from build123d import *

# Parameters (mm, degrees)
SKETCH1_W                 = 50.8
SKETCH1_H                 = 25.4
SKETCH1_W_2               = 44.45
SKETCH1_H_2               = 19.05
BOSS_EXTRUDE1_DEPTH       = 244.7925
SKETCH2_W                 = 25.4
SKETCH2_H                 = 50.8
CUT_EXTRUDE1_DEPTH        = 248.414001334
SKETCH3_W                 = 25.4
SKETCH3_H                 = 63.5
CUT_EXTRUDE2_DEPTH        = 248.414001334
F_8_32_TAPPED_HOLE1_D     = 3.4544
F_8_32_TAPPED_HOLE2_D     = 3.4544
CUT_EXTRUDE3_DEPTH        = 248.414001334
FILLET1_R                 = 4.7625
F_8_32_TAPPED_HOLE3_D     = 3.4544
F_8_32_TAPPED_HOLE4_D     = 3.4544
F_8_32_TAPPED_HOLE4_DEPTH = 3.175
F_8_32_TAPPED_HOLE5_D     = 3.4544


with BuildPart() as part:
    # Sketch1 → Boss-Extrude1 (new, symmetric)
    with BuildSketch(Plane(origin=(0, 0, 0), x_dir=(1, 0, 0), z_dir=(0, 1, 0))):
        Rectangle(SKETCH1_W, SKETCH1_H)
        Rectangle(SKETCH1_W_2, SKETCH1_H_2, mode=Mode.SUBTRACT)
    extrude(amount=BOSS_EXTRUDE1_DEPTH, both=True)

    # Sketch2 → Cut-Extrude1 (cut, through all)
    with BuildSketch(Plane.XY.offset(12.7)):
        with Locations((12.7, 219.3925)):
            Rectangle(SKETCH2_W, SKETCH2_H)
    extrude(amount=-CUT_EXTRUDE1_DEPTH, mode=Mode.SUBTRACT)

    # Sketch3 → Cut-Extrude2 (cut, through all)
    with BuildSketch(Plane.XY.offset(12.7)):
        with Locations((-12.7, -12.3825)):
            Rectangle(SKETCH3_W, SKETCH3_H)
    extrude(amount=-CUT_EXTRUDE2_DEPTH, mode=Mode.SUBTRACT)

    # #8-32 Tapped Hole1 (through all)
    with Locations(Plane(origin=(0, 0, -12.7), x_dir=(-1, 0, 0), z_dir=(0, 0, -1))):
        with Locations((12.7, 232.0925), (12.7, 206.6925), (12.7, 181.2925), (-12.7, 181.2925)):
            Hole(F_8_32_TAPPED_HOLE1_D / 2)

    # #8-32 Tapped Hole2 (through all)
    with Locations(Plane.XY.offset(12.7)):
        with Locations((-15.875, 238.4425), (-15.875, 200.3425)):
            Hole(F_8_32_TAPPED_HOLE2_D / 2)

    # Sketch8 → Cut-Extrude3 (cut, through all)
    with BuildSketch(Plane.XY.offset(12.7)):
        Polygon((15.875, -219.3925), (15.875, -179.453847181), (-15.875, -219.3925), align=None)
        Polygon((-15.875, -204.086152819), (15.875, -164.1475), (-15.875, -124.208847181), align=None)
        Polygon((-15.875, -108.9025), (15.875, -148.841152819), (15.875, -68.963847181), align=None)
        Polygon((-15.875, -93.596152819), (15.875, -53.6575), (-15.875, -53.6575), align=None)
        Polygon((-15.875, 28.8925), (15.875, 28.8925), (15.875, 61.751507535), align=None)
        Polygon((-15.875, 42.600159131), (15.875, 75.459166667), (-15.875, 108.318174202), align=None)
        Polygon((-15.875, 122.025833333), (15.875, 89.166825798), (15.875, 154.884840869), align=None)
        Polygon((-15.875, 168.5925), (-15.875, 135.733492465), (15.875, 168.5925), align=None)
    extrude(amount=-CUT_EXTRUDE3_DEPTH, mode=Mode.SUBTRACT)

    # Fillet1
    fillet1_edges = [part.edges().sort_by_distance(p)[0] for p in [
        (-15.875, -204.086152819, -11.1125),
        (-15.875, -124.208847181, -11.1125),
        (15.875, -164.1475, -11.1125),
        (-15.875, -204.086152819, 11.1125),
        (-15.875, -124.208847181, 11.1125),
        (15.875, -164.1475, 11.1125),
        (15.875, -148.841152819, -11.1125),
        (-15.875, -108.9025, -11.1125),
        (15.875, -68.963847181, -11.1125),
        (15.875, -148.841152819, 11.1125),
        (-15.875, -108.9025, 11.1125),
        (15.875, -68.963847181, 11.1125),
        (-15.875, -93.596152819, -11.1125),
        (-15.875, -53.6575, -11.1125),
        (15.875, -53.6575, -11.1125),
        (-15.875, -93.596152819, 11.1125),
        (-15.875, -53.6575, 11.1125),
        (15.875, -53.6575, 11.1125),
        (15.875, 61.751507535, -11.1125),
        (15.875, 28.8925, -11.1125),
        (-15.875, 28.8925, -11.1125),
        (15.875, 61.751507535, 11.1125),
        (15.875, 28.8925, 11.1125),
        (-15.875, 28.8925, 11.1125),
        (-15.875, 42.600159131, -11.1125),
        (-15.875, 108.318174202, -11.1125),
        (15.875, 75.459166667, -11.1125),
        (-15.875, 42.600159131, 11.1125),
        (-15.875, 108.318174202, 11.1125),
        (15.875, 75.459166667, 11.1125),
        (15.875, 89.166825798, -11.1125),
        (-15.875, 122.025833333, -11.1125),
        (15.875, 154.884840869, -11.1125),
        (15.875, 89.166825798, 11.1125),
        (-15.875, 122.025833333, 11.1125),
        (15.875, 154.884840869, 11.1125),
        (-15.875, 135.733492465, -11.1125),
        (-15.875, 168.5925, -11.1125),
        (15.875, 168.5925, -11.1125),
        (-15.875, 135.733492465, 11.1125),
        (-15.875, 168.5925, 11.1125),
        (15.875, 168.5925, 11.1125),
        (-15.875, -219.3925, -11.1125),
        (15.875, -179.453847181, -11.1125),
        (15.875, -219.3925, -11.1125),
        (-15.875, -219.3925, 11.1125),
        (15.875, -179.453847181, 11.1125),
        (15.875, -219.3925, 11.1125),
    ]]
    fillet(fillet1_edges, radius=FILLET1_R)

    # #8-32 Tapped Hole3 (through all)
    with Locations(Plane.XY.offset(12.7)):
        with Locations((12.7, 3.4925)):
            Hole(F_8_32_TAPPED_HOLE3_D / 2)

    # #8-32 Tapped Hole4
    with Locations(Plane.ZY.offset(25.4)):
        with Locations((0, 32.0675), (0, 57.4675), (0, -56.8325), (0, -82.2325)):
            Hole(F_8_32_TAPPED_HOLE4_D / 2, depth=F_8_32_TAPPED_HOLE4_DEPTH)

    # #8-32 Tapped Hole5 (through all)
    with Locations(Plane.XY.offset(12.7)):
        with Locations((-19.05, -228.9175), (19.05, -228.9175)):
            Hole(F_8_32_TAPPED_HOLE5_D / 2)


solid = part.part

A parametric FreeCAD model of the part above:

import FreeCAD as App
import Part
import Sketcher

V = App.Vector
Q = App.Units.Quantity


def edges_at(feature, points):
    """Names of the edges that pass closest to the given points."""
    edges = feature.Shape.Edges
    near = lambda p: min(range(len(edges)), key=lambda i: edges[i].distToShape(Part.Vertex(*p))[0])
    return sorted({f"Edge{near(p) + 1}" for p in points})

doc = App.newDocument("Part")
body = doc.addObject("PartDesign::Body", "Body")

sketch1 = body.newObject("Sketcher::SketchObject", "Sketch")
sketch1.AttachmentSupport = (doc.getObject("XZ_Plane"), [""])
sketch1.MapMode = "FlatFace"
sketch1.addGeometry([
    Part.LineSegment(V(-25.4, -12.7, 0), V(-25.4, 12.7, 0)),
    Part.LineSegment(V(-25.4, 12.7, 0), V(25.4, 12.7, 0)),
    Part.LineSegment(V(25.4, 12.7, 0), V(25.4, -12.7, 0)),
    Part.LineSegment(V(25.4, -12.7, 0), V(-25.4, -12.7, 0)),
    Part.LineSegment(V(22.225, 9.525, 0), V(-22.225, 9.525, 0)),
    Part.LineSegment(V(-22.225, 9.525, 0), V(-22.225, -9.525, 0)),
    Part.LineSegment(V(-22.225, -9.525, 0), V(22.225, -9.525, 0)),
    Part.LineSegment(V(22.225, -9.525, 0), V(22.225, 9.525, 0)),
], False)
sketch1.addConstraint([
    Sketcher.Constraint("Coincident", 0, 2, 1, 1),
    Sketcher.Constraint("Coincident", 1, 2, 2, 1),
    Sketcher.Constraint("Coincident", 2, 2, 3, 1),
    Sketcher.Constraint("Coincident", 3, 2, 0, 1),
    Sketcher.Constraint("Coincident", 4, 2, 5, 1),
    Sketcher.Constraint("Coincident", 5, 2, 6, 1),
    Sketcher.Constraint("Coincident", 6, 2, 7, 1),
    Sketcher.Constraint("Coincident", 7, 2, 4, 1),
    Sketcher.Constraint("Vertical", 0),
    Sketcher.Constraint("Horizontal", 1),
    Sketcher.Constraint("Vertical", 2),
    Sketcher.Constraint("Horizontal", 3),
    Sketcher.Constraint("Horizontal", 4),
    Sketcher.Constraint("Vertical", 5),
    Sketcher.Constraint("Horizontal", 6),
    Sketcher.Constraint("Vertical", 7),
    Sketcher.Constraint("Symmetric", 0, 2, 2, 2, -1, 1),
    Sketcher.Constraint("Symmetric", 4, 2, 6, 2, -1, 1),
    Sketcher.Constraint("DistanceX", 1, 1, 1, 2, Q("2 in")),
    Sketcher.Constraint("DistanceY", 0, 1, 0, 2, Q("1 in")),
    Sketcher.Constraint("DistanceX", 4, 2, 4, 1, Q("1.75 in")),
    Sketcher.Constraint("DistanceY", 5, 2, 5, 1, Q("0.75 in")),
])
pad1 = body.newObject("PartDesign::Pad", "Pad")
pad1.Profile = sketch1
pad1.Length = Q("19.275 in")
pad1.Midplane = True

sketch2 = body.newObject("Sketcher::SketchObject", "Sketch001")
sketch2.AttachmentSupport = (doc.getObject("XY_Plane"), [""])
sketch2.MapMode = "FlatFace"
sketch2.AttachmentOffset = App.Placement(V(0, 0, 0.5 * 25.4), App.Rotation())
sketch2.addGeometry([
    Part.LineSegment(V(0, 244.7925, 0), V(0, 193.9925, 0)),
    Part.LineSegment(V(0, 193.9925, 0), V(25.4, 193.9925, 0)),
    Part.LineSegment(V(25.4, 193.9925, 0), V(25.4, 244.7925, 0)),
    Part.LineSegment(V(25.4, 244.7925, 0), V(0, 244.7925, 0)),
], False)
sketch2.addConstraint([
    Sketcher.Constraint("Coincident", 0, 2, 1, 1),
    Sketcher.Constraint("Coincident", 1, 2, 2, 1),
    Sketcher.Constraint("Coincident", 2, 2, 3, 1),
    Sketcher.Constraint("Coincident", 3, 2, 0, 1),
    Sketcher.Constraint("Vertical", 0),
    Sketcher.Constraint("Horizontal", 1),
    Sketcher.Constraint("Vertical", 2),
    Sketcher.Constraint("Horizontal", 3),
    Sketcher.Constraint("PointOnObject", 0, 2, -2),
    Sketcher.Constraint("DistanceX", 1, 1, 1, 2, Q("1 in")),
    Sketcher.Constraint("DistanceY", 0, 2, 0, 1, Q("2 in")),
    Sketcher.Constraint("DistanceY", -1, 1, 0, 2, Q("7.6375 in")),
])
pocket1 = body.newObject("PartDesign::Pocket", "Pocket")
pocket1.Profile = sketch2
pocket1.Type = "ThroughAll"

sketch3 = body.newObject("Sketcher::SketchObject", "Sketch002")
sketch3.AttachmentSupport = (doc.getObject("XY_Plane"), [""])
sketch3.MapMode = "FlatFace"
sketch3.AttachmentOffset = App.Placement(V(0, 0, 0.5 * 25.4), App.Rotation())
sketch3.addGeometry([
    Part.LineSegment(V(-25.4, 19.3675, 0), V(-25.4, -44.1325, 0)),
    Part.LineSegment(V(-25.4, -44.1325, 0), V(0, -44.1325, 0)),
    Part.LineSegment(V(0, -44.1325, 0), V(0, 19.3675, 0)),
    Part.LineSegment(V(0, 19.3675, 0), V(-25.4, 19.3675, 0)),
], False)
sketch3.addConstraint([
    Sketcher.Constraint("Coincident", 0, 2, 1, 1),
    Sketcher.Constraint("Coincident", 1, 2, 2, 1),
    Sketcher.Constraint("Coincident", 2, 2, 3, 1),
    Sketcher.Constraint("Coincident", 3, 2, 0, 1),
    Sketcher.Constraint("Vertical", 0),
    Sketcher.Constraint("Horizontal", 1),
    Sketcher.Constraint("Vertical", 2),
    Sketcher.Constraint("Horizontal", 3),
    Sketcher.Constraint("PointOnObject", 1, 2, -2),
    Sketcher.Constraint("DistanceX", 1, 1, 1, 2, Q("1 in")),
    Sketcher.Constraint("DistanceY", 0, 2, 0, 1, Q("2.5 in")),
    Sketcher.Constraint("DistanceY", 0, 2, -1, 1, Q("1.7375 in")),
])
pocket2 = body.newObject("PartDesign::Pocket", "Pocket001")
pocket2.Profile = sketch3
pocket2.Type = "ThroughAll"

sketch4 = body.newObject("Sketcher::SketchObject", "Sketch003")
sketch4.AttachmentSupport = (doc.getObject("XY_Plane"), [""])
sketch4.MapMode = "FlatFace"
sketch4.AttachmentOffset = App.Placement(V(0, 0, -0.5 * 25.4), App.Rotation())
sketch4.addGeometry([
    Part.Circle(V(-12.7, 232.0925, 0), V(0, 0, 1), 1.7272),
    Part.Circle(V(-12.7, 206.6925, 0), V(0, 0, 1), 1.7272),
    Part.Circle(V(-12.7, 181.2925, 0), V(0, 0, 1), 1.7272),
    Part.Circle(V(12.7, 181.2925, 0), V(0, 0, 1), 1.7272),
], False)
sketch4.addConstraint([
    Sketcher.Constraint("Equal", 0, 1),
    Sketcher.Constraint("Equal", 1, 2),
    Sketcher.Constraint("Equal", 2, 3),
    Sketcher.Constraint("Symmetric", 2, 3, 3, 3, -2),
    Sketcher.Constraint("Vertical", 0, 3, 1, 3),
    Sketcher.Constraint("Vertical", 1, 3, 2, 3),
    Sketcher.Constraint("Diameter", 0, Q("0.136 in")),
    Sketcher.Constraint("DistanceY", 1, 3, 0, 3, Q("1 in")),
    Sketcher.Constraint("DistanceY", 2, 3, 1, 3, Q("1 in")),
    Sketcher.Constraint("DistanceX", 2, 3, 3, 3, Q("1 in")),
    Sketcher.Constraint("DistanceY", -1, 1, 0, 3, Q("9.1375 in")),
])
doc.recompute()
hole = body.newObject("PartDesign::Hole", "Hole")
hole.Profile = sketch4
hole.ThreadType = "None"
hole.Diameter = Q("0.136 in")
hole.DepthType = "ThroughAll"
hole.Reversed = True

sketch5 = body.newObject("Sketcher::SketchObject", "Sketch004")
sketch5.AttachmentSupport = (doc.getObject("XY_Plane"), [""])
sketch5.MapMode = "FlatFace"
sketch5.AttachmentOffset = App.Placement(V(0, 0, 0.5 * 25.4), App.Rotation())
sketch5.addGeometry([
    Part.Circle(V(-15.875, 238.4425, 0), V(0, 0, 1), 1.7272),
    Part.Circle(V(-15.875, 200.3425, 0), V(0, 0, 1), 1.7272),
], False)
sketch5.addConstraint([
    Sketcher.Constraint("Equal", 0, 1),
    Sketcher.Constraint("Vertical", 0, 3, 1, 3),
    Sketcher.Constraint("Diameter", 0, Q("0.136 in")),
    Sketcher.Constraint("DistanceY", 1, 3, 0, 3, Q("1.5 in")),
    Sketcher.Constraint("DistanceX", 0, 3, -1, 1, Q("0.625 in")),
    Sketcher.Constraint("DistanceY", -1, 1, 0, 3, Q("9.3875 in")),
])
doc.recompute()
hole2 = body.newObject("PartDesign::Hole", "Hole001")
hole2.Profile = sketch5
hole2.ThreadType = "None"
hole2.Diameter = Q("0.136 in")
hole2.DepthType = "ThroughAll"

sketch6 = body.newObject("Sketcher::SketchObject", "Sketch005")
sketch6.AttachmentSupport = (doc.getObject("XY_Plane"), [""])
sketch6.MapMode = "FlatFace"
sketch6.AttachmentOffset = App.Placement(V(0, 0, 0.5 * 25.4), App.Rotation())
sketch6.addGeometry([
    Part.LineSegment(V(15.875, -219.3925, 0), V(15.875, -179.453847, 0)),
    Part.LineSegment(V(15.875, -179.453847, 0), V(-15.875, -219.3925, 0)),
    Part.LineSegment(V(-15.875, -219.3925, 0), V(15.875, -219.3925, 0)),
    Part.LineSegment(V(-15.875, -204.086153, 0), V(15.875, -164.1475, 0)),
    Part.LineSegment(V(15.875, -164.1475, 0), V(-15.875, -124.208847, 0)),
    Part.LineSegment(V(-15.875, -124.208847, 0), V(-15.875, -204.086153, 0)),
    Part.LineSegment(V(-15.875, -108.9025, 0), V(15.875, -148.841153, 0)),
    Part.LineSegment(V(15.875, -148.841153, 0), V(15.875, -68.963847, 0)),
    Part.LineSegment(V(15.875, -68.963847, 0), V(-15.875, -108.9025, 0)),
    Part.LineSegment(V(-15.875, -93.596153, 0), V(15.875, -53.6575, 0)),
    Part.LineSegment(V(15.875, -53.6575, 0), V(-15.875, -53.6575, 0)),
    Part.LineSegment(V(-15.875, -53.6575, 0), V(-15.875, -93.596153, 0)),
    Part.LineSegment(V(-15.875, 28.8925, 0), V(15.875, 28.8925, 0)),
    Part.LineSegment(V(15.875, 28.8925, 0), V(15.875, 61.751508, 0)),
    Part.LineSegment(V(15.875, 61.751508, 0), V(-15.875, 28.8925, 0)),
    Part.LineSegment(V(-15.875, 42.600159, 0), V(15.875, 75.459167, 0)),
    Part.LineSegment(V(15.875, 75.459167, 0), V(-15.875, 108.318174, 0)),
    Part.LineSegment(V(-15.875, 108.318174, 0), V(-15.875, 42.600159, 0)),
    Part.LineSegment(V(-15.875, 122.025833, 0), V(15.875, 89.166826, 0)),
    Part.LineSegment(V(15.875, 89.166826, 0), V(15.875, 154.884841, 0)),
    Part.LineSegment(V(15.875, 154.884841, 0), V(-15.875, 122.025833, 0)),
    Part.LineSegment(V(-15.875, 168.5925, 0), V(-15.875, 135.733492, 0)),
    Part.LineSegment(V(-15.875, 135.733492, 0), V(15.875, 168.5925, 0)),
    Part.LineSegment(V(15.875, 168.5925, 0), V(-15.875, 168.5925, 0)),
], False)
sketch6.addConstraint([
    Sketcher.Constraint("Coincident", 0, 2, 1, 1),
    Sketcher.Constraint("Coincident", 1, 2, 2, 1),
    Sketcher.Constraint("Coincident", 2, 2, 0, 1),
    Sketcher.Constraint("Coincident", 3, 2, 4, 1),
    Sketcher.Constraint("Coincident", 4, 2, 5, 1),
    Sketcher.Constraint("Coincident", 5, 2, 3, 1),
    Sketcher.Constraint("Coincident", 6, 2, 7, 1),
    Sketcher.Constraint("Coincident", 7, 2, 8, 1),
    Sketcher.Constraint("Coincident", 8, 2, 6, 1),
    Sketcher.Constraint("Coincident", 9, 2, 10, 1),
    Sketcher.Constraint("Coincident", 10, 2, 11, 1),
    Sketcher.Constraint("Coincident", 11, 2, 9, 1),
    Sketcher.Constraint("Coincident", 12, 2, 13, 1),
    Sketcher.Constraint("Coincident", 13, 2, 14, 1),
    Sketcher.Constraint("Coincident", 14, 2, 12, 1),
    Sketcher.Constraint("Coincident", 15, 2, 16, 1),
    Sketcher.Constraint("Coincident", 16, 2, 17, 1),
    Sketcher.Constraint("Coincident", 17, 2, 15, 1),
    Sketcher.Constraint("Coincident", 18, 2, 19, 1),
    Sketcher.Constraint("Coincident", 19, 2, 20, 1),
    Sketcher.Constraint("Coincident", 20, 2, 18, 1),
    Sketcher.Constraint("Coincident", 21, 2, 22, 1),
    Sketcher.Constraint("Coincident", 22, 2, 23, 1),
    Sketcher.Constraint("Coincident", 23, 2, 21, 1),
    Sketcher.Constraint("Vertical", 0),
    Sketcher.Constraint("Horizontal", 2),
    Sketcher.Constraint("Vertical", 5),
    Sketcher.Constraint("Vertical", 7),
    Sketcher.Constraint("Horizontal", 10),
    Sketcher.Constraint("Vertical", 11),
    Sketcher.Constraint("Horizontal", 12),
    Sketcher.Constraint("Vertical", 13),
    Sketcher.Constraint("Vertical", 17),
    Sketcher.Constraint("Vertical", 19),
    Sketcher.Constraint("Vertical", 21),
    Sketcher.Constraint("Horizontal", 23),
    Sketcher.Constraint("Parallel", 1, 3),
    Sketcher.Constraint("Parallel", 4, 6),
    Sketcher.Constraint("Parallel", 3, 8),
    Sketcher.Constraint("Parallel", 8, 9),
    Sketcher.Constraint("Parallel", 14, 15),
    Sketcher.Constraint("Parallel", 16, 18),
    Sketcher.Constraint("Parallel", 15, 20),
    Sketcher.Constraint("Parallel", 20, 22),
    Sketcher.Constraint("Vertical", 2, 2, 3, 2),
    Sketcher.Constraint("Vertical", 1, 2, 4, 2),
    Sketcher.Constraint("Vertical", 3, 2, 6, 2),
    Sketcher.Constraint("Vertical", 5, 2, 8, 2),
    Sketcher.Constraint("Vertical", 7, 2, 9, 2),
    Sketcher.Constraint("Vertical", 8, 2, 10, 2),
    Sketcher.Constraint("Vertical", 9, 2, 12, 2),
    Sketcher.Constraint("Vertical", 11, 2, 14, 2),
    Sketcher.Constraint("Vertical", 13, 2, 15, 2),
    Sketcher.Constraint("Vertical", 14, 2, 16, 2),
    Sketcher.Constraint("Vertical", 15, 2, 18, 2),
    Sketcher.Constraint("Vertical", 17, 2, 20, 2),
    Sketcher.Constraint("Vertical", 20, 2, 21, 2),
    Sketcher.Constraint("Vertical", 19, 2, 22, 2),
    Sketcher.Constraint("Equal", 3, 4),
    Sketcher.Constraint("Equal", 15, 16),
    Sketcher.Constraint("DistanceX", 2, 1, 2, 2, Q("1.25 in")),
    Sketcher.Constraint("DistanceY", 0, 2, 7, 2, Q("4.35 in")),
    Sketcher.Constraint("DistanceY", 3, 2, 9, 2, Q("4.35 in")),
    Sketcher.Constraint("DistanceY", 9, 2, 12, 2, Q("3.25 in")),
    Sketcher.Constraint("DistanceX", -1, 1, 0, 2, Q("0.625 in")),
    Sketcher.Constraint("DistanceY", 2, 2, 3, 2, Q("2.175 in")),
    Sketcher.Constraint("DistanceY", 1, 2, -1, 1, Q("8.6375 in")),
    Sketcher.Constraint("DistanceY", -1, 1, 22, 2, Q("6.6375 in")),
    Sketcher.Constraint("DistanceY", 0, 1, 0, 2, 39.938653),
    Sketcher.Constraint("DistanceY", 13, 1, 13, 2, 32.859008),
    Sketcher.Constraint("DistanceY", -1, 1, 17, 2, 42.600159),
    Sketcher.Constraint("DistanceY", -1, 1, 19, 2, 154.884841),
])
pocket3 = body.newObject("PartDesign::Pocket", "Pocket002")
pocket3.Profile = sketch6
pocket3.Type = "ThroughAll"
doc.recompute()

fillet = body.newObject("PartDesign::Fillet", "Fillet")
fillet.Base = (pocket3, edges_at(pocket3, [
    (-15.875, -204.086, -11.113),
    (-15.875, -124.209, -11.113),
    (15.875, -164.148, -11.113),
    (-15.875, -204.086, 11.113),
    (-15.875, -124.209, 11.113),
    (15.875, -164.148, 11.113),
    (15.875, -148.841, -11.113),
    (-15.875, -108.903, -11.113),
    (15.875, -68.964, -11.113),
    (15.875, -148.841, 11.113),
    (-15.875, -108.903, 11.113),
    (15.875, -68.964, 11.113),
    (-15.875, -93.596, -11.113),
    (-15.875, -53.657, -11.113),
    (15.875, -53.657, -11.113),
    (-15.875, -93.596, 11.113),
    (-15.875, -53.657, 11.113),
    (15.875, -53.657, 11.113),
    (15.875, 61.752, -11.113),
    (15.875, 28.892, -11.113),
    (-15.875, 28.892, -11.113),
    (15.875, 61.752, 11.113),
    (15.875, 28.892, 11.113),
    (-15.875, 28.892, 11.113),
    (-15.875, 42.6, -11.113),
    (-15.875, 108.318, -11.113),
    (15.875, 75.459, -11.113),
    (-15.875, 42.6, 11.113),
    (-15.875, 108.318, 11.113),
    (15.875, 75.459, 11.113),
    (15.875, 89.167, -11.113),
    (-15.875, 122.026, -11.113),
    (15.875, 154.885, -11.113),
    (15.875, 89.167, 11.113),
    (-15.875, 122.026, 11.113),
    (15.875, 154.885, 11.113),
    (-15.875, 135.733, -11.113),
    (-15.875, 168.593, -11.113),
    (15.875, 168.593, -11.113),
    (-15.875, 135.733, 11.113),
    (-15.875, 168.593, 11.113),
    (15.875, 168.593, 11.113),
    (-15.875, -219.393, -11.113),
    (15.875, -179.454, -11.113),
    (15.875, -219.393, -11.113),
    (-15.875, -219.393, 11.113),
    (15.875, -179.454, 11.113),
    (15.875, -219.393, 11.113),
]))
fillet.Radius = Q("0.1875 in")

sketch7 = body.newObject("Sketcher::SketchObject", "Sketch006")
sketch7.AttachmentSupport = (doc.getObject("XY_Plane"), [""])
sketch7.MapMode = "FlatFace"
sketch7.AttachmentOffset = App.Placement(V(0, 0, 0.5 * 25.4), App.Rotation())
sketch7.addGeometry(Part.Circle(V(12.7, 3.4925, 0), V(0, 0, 1), 1.7272), False)
sketch7.addConstraint([
    Sketcher.Constraint("Diameter", 0, Q("0.136 in")),
    Sketcher.Constraint("DistanceX", -1, 1, 0, 3, Q("0.5 in")),
    Sketcher.Constraint("DistanceY", -1, 1, 0, 3, Q("0.1375 in")),
])
doc.recompute()
hole3 = body.newObject("PartDesign::Hole", "Hole002")
hole3.Profile = sketch7
hole3.ThreadType = "None"
hole3.Diameter = Q("0.136 in")
hole3.DepthType = "ThroughAll"

sketch8 = body.newObject("Sketcher::SketchObject", "Sketch007")
sketch8.AttachmentSupport = (doc.getObject("YZ_Plane"), [""])
sketch8.MapMode = "FlatFace"
sketch8.AttachmentOffset = App.Placement(V(0, 0, -1 * 25.4), App.Rotation())
sketch8.addGeometry([
    Part.Circle(V(32.0675, 0, 0), V(0, 0, 1), 1.7272),
    Part.Circle(V(57.4675, 0, 0), V(0, 0, 1), 1.7272),
    Part.Circle(V(-56.8325, 0, 0), V(0, 0, 1), 1.7272),
    Part.Circle(V(-82.2325, 0, 0), V(0, 0, 1), 1.7272),
], False)
sketch8.addConstraint([
    Sketcher.Constraint("Equal", 0, 1),
    Sketcher.Constraint("Equal", 1, 2),
    Sketcher.Constraint("Equal", 2, 3),
    Sketcher.Constraint("PointOnObject", 0, 3, -1),
    Sketcher.Constraint("PointOnObject", 1, 3, -1),
    Sketcher.Constraint("PointOnObject", 2, 3, -1),
    Sketcher.Constraint("PointOnObject", 3, 3, -1),
    Sketcher.Constraint("Diameter", 0, Q("0.136 in")),
    Sketcher.Constraint("DistanceX", 0, 3, 1, 3, Q("1 in")),
    Sketcher.Constraint("DistanceX", 3, 3, 2, 3, Q("1 in")),
    Sketcher.Constraint("DistanceX", 2, 3, 0, 3, Q("3.5 in")),
    Sketcher.Constraint("DistanceX", -1, 1, 0, 3, Q("1.2625 in")),
])
doc.recompute()
hole4 = body.newObject("PartDesign::Hole", "Hole003")
hole4.Profile = sketch8
hole4.ThreadType = "None"
hole4.Diameter = Q("0.136 in")
hole4.DepthType = "Dimension"
hole4.Depth = Q("0.125 in")
hole4.DrillPoint = "Flat"
hole4.Reversed = True

sketch9 = body.newObject("Sketcher::SketchObject", "Sketch008")
sketch9.AttachmentSupport = (doc.getObject("XY_Plane"), [""])
sketch9.MapMode = "FlatFace"
sketch9.AttachmentOffset = App.Placement(V(0, 0, 0.5 * 25.4), App.Rotation())
sketch9.addGeometry([
    Part.Circle(V(-19.05, -228.9175, 0), V(0, 0, 1), 1.7272),
    Part.Circle(V(19.05, -228.9175, 0), V(0, 0, 1), 1.7272),
], False)
sketch9.addConstraint([
    Sketcher.Constraint("Equal", 0, 1),
    Sketcher.Constraint("Symmetric", 0, 3, 1, 3, -2),
    Sketcher.Constraint("Diameter", 0, Q("0.136 in")),
    Sketcher.Constraint("DistanceX", 0, 3, 1, 3, Q("1.5 in")),
    Sketcher.Constraint("DistanceY", 0, 3, -1, 1, Q("9.0125 in")),
])
doc.recompute()
hole5 = body.newObject("PartDesign::Hole", "Hole004")
hole5.Profile = sketch9
hole5.ThreadType = "None"
hole5.Diameter = Q("0.136 in")
hole5.DepthType = "ThroughAll"

doc.recompute()
